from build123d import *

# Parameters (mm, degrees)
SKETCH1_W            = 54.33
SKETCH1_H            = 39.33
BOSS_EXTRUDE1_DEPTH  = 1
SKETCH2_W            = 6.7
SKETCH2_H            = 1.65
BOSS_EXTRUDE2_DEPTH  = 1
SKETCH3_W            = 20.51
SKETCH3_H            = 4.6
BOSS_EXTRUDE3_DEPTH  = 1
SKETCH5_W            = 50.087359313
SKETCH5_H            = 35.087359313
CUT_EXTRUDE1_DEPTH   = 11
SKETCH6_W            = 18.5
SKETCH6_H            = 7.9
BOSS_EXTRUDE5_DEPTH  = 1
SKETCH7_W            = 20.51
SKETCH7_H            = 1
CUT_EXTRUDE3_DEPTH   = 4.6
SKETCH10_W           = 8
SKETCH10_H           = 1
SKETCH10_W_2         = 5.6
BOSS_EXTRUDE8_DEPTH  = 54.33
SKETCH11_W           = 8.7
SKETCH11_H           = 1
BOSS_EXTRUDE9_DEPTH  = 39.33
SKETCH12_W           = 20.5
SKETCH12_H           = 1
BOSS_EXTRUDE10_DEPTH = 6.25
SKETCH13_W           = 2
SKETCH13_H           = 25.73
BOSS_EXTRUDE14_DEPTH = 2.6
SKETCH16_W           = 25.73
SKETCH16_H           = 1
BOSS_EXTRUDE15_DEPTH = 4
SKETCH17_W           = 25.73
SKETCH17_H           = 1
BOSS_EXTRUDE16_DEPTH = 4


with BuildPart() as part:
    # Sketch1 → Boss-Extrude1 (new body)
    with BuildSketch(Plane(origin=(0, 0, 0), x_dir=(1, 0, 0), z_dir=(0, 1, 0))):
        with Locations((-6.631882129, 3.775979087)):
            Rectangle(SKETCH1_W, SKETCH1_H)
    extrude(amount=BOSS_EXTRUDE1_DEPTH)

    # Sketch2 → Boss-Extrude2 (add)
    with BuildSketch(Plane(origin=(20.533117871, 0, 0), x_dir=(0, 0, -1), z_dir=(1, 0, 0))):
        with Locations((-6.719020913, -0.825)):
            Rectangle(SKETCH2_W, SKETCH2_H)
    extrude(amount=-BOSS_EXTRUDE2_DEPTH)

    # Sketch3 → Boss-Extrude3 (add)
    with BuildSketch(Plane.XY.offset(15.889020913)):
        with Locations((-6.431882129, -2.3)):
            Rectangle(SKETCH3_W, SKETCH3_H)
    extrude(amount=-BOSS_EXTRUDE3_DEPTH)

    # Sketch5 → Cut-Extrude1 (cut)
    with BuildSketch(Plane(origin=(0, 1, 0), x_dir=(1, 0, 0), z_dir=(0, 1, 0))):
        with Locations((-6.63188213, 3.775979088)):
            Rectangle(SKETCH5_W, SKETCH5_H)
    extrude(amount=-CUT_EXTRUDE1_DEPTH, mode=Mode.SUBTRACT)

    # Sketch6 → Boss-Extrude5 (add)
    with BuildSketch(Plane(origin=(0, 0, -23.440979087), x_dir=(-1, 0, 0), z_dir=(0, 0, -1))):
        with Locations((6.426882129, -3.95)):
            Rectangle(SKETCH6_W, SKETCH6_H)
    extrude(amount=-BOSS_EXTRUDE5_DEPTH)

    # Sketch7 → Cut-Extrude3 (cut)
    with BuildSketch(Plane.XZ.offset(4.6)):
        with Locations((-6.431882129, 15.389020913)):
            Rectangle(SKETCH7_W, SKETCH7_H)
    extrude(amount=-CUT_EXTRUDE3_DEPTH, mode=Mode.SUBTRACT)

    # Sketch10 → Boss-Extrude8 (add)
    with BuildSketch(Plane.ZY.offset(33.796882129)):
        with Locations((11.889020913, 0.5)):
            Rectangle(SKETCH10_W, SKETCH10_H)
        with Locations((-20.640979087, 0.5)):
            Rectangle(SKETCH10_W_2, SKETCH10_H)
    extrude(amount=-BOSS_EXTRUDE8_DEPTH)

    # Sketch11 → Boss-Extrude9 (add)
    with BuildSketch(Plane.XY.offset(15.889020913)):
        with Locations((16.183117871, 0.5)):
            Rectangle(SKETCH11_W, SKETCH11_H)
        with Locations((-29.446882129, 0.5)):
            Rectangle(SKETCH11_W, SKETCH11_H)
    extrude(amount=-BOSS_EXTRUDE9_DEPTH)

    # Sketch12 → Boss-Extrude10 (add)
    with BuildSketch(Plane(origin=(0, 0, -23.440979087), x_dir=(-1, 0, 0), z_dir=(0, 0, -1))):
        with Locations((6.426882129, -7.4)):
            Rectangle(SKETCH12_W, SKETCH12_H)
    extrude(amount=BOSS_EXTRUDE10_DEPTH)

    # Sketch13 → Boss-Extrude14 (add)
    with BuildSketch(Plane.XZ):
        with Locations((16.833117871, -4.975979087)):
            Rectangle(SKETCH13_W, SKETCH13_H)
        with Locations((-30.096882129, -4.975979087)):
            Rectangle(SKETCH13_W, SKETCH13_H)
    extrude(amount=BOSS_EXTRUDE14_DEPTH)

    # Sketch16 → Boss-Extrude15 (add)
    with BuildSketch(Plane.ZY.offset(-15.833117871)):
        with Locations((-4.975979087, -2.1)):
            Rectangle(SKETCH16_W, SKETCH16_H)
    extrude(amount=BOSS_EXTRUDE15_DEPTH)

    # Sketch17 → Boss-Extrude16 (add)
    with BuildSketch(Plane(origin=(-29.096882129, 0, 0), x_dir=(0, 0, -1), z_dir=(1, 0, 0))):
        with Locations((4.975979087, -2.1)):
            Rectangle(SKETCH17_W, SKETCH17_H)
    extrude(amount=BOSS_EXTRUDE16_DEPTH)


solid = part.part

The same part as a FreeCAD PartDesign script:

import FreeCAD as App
import Part
import Sketcher

doc = App.newDocument("Part")
params = doc.addObject("Spreadsheet::Sheet", "Params")
for row, (alias, value) in enumerate([
    ("sketch1_width", "54.33 mm"),
    ("sketch1_height", "39.33 mm"),
    ("pad1_length", "1 mm"),
    ("sketch2_height", "6.7 mm"),
    ("sketch2_width", "1.65 mm"),
    ("pad2_length", "1 mm"),
    ("sketch3_height", "4.6 mm"),
    ("sketch3_width", "20.51 mm"),
    ("pad3_length", "1 mm"),
    ("pocket1_length", "11 mm"),
    ("sketch5_width", "18.5 mm"),
    ("sketch5_height", "7.9 mm"),
    ("pad4_length", "1 mm"),
    ("sketch6_height", "1 mm"),
    ("sketch6_width", "20.51 mm"),
    ("pocket2_length", "4.6 mm"),
    ("sketch7_width", "1 mm"),
    ("sketch7_height", "8 mm"),
    ("sketch7_height2", "5.6 mm"),
    ("pad5_length", "54.33 mm"),
    ("sketch8_height", "1 mm"),
    ("sketch8_width", "8.7 mm"),
    ("pad6_length", "39.33 mm"),
    ("sketch9_height", "1 mm"),
    ("sketch9_width", "20.5 mm"),
    ("pad7_length", "6.25 mm"),
    ("sketch10_width", "2 mm"),
    ("sketch10_height", "25.73 mm"),
    ("pad8_length", "2.6 mm"),
    ("sketch11_width", "1 mm"),
    ("sketch11_height", "25.73 mm"),
    ("pad9_length", "4 mm"),
    ("sketch12_width", "1 mm"),
    ("sketch12_height", "25.73 mm"),
    ("pad10_length", "4 mm"),
], start=1):
    params.set(f"A{row}", alias)
    params.set(f"B{row}", "=" + value)
    params.setAlias(f"B{row}", alias)

body = doc.addObject("PartDesign::Body", "Body")

# Sketch on XZ plane
sketch1 = doc.addObject("Sketcher::SketchObject", "Sketch")
body.addObject(sketch1)
sketch1.AttachmentSupport = (doc.XZ_Plane, [""])
sketch1.MapMode = "FlatFace"
sketch1.addGeometry(Part.LineSegment(App.Vector(-34, -23, 0), App.Vector(-34, 16, 0)), False)
sketch1.addGeometry(Part.LineSegment(App.Vector(-34, 16, 0), App.Vector(21, 16, 0)), False)
sketch1.addGeometry(Part.LineSegment(App.Vector(21, 16, 0), App.Vector(21, -23, 0)), False)
sketch1.addGeometry(Part.LineSegment(App.Vector(21, -23, 0), App.Vector(-34, -23, 0)), False)
sketch1.addConstraint(Sketcher.Constraint("Coincident", 0, 2, 1, 1))
sketch1.addConstraint(Sketcher.Constraint("Coincident", 1, 2, 2, 1))
sketch1.addConstraint(Sketcher.Constraint("Coincident", 2, 2, 3, 1))
sketch1.addConstraint(Sketcher.Constraint("Coincident", 3, 2, 0, 1))
sketch1.addConstraint(Sketcher.Constraint("Vertical", 0))
sketch1.addConstraint(Sketcher.Constraint("Horizontal", 1))
sketch1.addConstraint(Sketcher.Constraint("Vertical", 2))
sketch1.addConstraint(Sketcher.Constraint("Horizontal", 3))
sketch1.addConstraint(Sketcher.Constraint("DistanceX", 1, 1, 1, 2, 54.33))
sketch1.addConstraint(Sketcher.Constraint("DistanceY", 0, 1, 0, 2, 39.33))
sketch1.addConstraint(Sketcher.Constraint("DistanceY", -1, 1, 0, 2, 15.889021))
sketch1.addConstraint(Sketcher.Constraint("DistanceX", 0, 2, -1, 1, 33.796882))
sketch1.setExpression("Constraints[8]", "Params.sketch1_width")
sketch1.setExpression("Constraints[9]", "Params.sketch1_height")
pad1 = doc.addObject("PartDesign::Pad", "Pad")
body.addObject(pad1)
pad1.Profile = sketch1
pad1.setExpression("Length", "Params.pad1_length")
pad1.Reversed = True

# Sketch on YZ plane
sketch2 = doc.addObject("Sketcher::SketchObject", "Sketch001")
body.addObject(sketch2)
sketch2.AttachmentSupport = (doc.YZ_Plane, [""])
sketch2.MapMode = "FlatFace"
sketch2.AttachmentOffset = App.Placement(App.Vector(0, 0, 20.533118), App.Rotation())
sketch2.addGeometry(Part.LineSegment(App.Vector(0, 10.1, 0), App.Vector(-1.6, 10.1, 0)), False)
sketch2.addGeometry(Part.LineSegment(App.Vector(-1.6, 10.1, 0), App.Vector(-1.6, 3.4, 0)), False)
sketch2.addGeometry(Part.LineSegment(App.Vector(-1.6, 3.4, 0), App.Vector(0, 3.4, 0)), False)
sketch2.addGeometry(Part.LineSegment(App.Vector(0, 3.4, 0), App.Vector(0, 10.1, 0)), False)
sketch2.addConstraint(Sketcher.Constraint("Coincident", 0, 2, 1, 1))
sketch2.addConstraint(Sketcher.Constraint("Coincident", 1, 2, 2, 1))
sketch2.addConstraint(Sketcher.Constraint("Coincident", 2, 2, 3, 1))
sketch2.addConstraint(Sketcher.Constraint("Coincident", 3, 2, 0, 1))
sketch2.addConstraint(Sketcher.Constraint("Horizontal", 0))
sketch2.addConstraint(Sketcher.Constraint("Vertical", 1))
sketch2.addConstraint(Sketcher.Constraint("Horizontal", 2))
sketch2.addConstraint(Sketcher.Constraint("Vertical", 3))
sketch2.addConstraint(Sketcher.Constraint("PointOnObject", 2, 2, -2))
sketch2.addConstraint(Sketcher.Constraint("DistanceY", 1, 2, 1, 1, 6.7))
sketch2.addConstraint(Sketcher.Constraint("DistanceX", 0, 2, 0, 1, 1.65))
sketch2.addConstraint(Sketcher.Constraint("DistanceY", -1, 1, 0, 2, 10.069021))
sketch2.setExpression("Constraints[9]", "Params.sketch2_height")
sketch2.setExpression("Constraints[10]", "Params.sketch2_width")
pad2 = doc.addObject("PartDesign::Pad", "Pad001")
body.addObject(pad2)
pad2.Profile = sketch2
pad2.setExpression("Length", "Params.pad2_length")
pad2.Reversed = True

# Sketch on XY plane
sketch3 = doc.addObject("Sketcher::SketchObject", "Sketch002")
body.addObject(sketch3)
sketch3.AttachmentSupport = (doc.XY_Plane, [""])
sketch3.MapMode = "FlatFace"
sketch3.AttachmentOffset = App.Placement(App.Vector(0, 0, 15.889021), App.Rotation())
sketch3.addGeometry(Part.LineSegment(App.Vector(-16.7, 0, 0), App.Vector(-16.7, -4.6, 0)), False)
sketch3.addGeometry(Part.LineSegment(App.Vector(-16.7, -4.6, 0), App.Vector(3.8, -4.6, 0)), False)
sketch3.addGeometry(Part.LineSegment(App.Vector(3.8, -4.6, 0), App.Vector(3.8, 0, 0)), False)
sketch3.addGeometry(Part.LineSegment(App.Vector(3.8, 0, 0), App.Vector(-16.7, 0, 0)), False)
sketch3.addConstraint(Sketcher.Constraint("Coincident", 0, 2, 1, 1))
sketch3.addConstraint(Sketcher.Constraint("Coincident", 1, 2, 2, 1))
sketch3.addConstraint(Sketcher.Constraint("Coincident", 2, 2, 3, 1))
sketch3.addConstraint(Sketcher.Constraint("Coincident", 3, 2, 0, 1))
sketch3.addConstraint(Sketcher.Constraint("Vertical", 0))
sketch3.addConstraint(Sketcher.Constraint("Horizontal", 1))
sketch3.addConstraint(Sketcher.Constraint("Vertical", 2))
sketch3.addConstraint(Sketcher.Constraint("Horizontal", 3))
sketch3.addConstraint(Sketcher.Constraint("PointOnObject", 2, 2, -1))
sketch3.addConstraint(Sketcher.Constraint("DistanceY", 0, 2, 0, 1, 4.6))
sketch3.addConstraint(Sketcher.Constraint("DistanceX", 1, 1, 1, 2, 20.51))
sketch3.addConstraint(Sketcher.Constraint("DistanceX", 0, 2, -1, 1, 16.686882))
sketch3.setExpression("Constraints[9]", "Params.sketch3_height")
sketch3.setExpression("Constraints[10]", "Params.sketch3_width")
pad3 = doc.addObject("PartDesign::Pad", "Pad002")
body.addObject(pad3)
pad3.Profile = sketch3
pad3.setExpression("Length", "Params.pad3_length")
pad3.Reversed = True

# Sketch on XZ plane
sketch4 = doc.addObject("Sketcher::SketchObject", "Sketch003")
body.addObject(sketch4)
sketch4.AttachmentSupport = (doc.XZ_Plane, [""])
sketch4.MapMode = "FlatFace"
sketch4.AttachmentOffset = App.Placement(App.Vector(0, 0, -1), App.Rotation())
sketch4.addGeometry(Part.LineSegment(App.Vector(-32, -21, 0), App.Vector(-32, 14, 0)), False)
sketch4.addGeometry(Part.LineSegment(App.Vector(-32, 14, 0), App.Vector(18, 14, 0)), False)
sketch4.addGeometry(Part.LineSegment(App.Vector(18, 14, 0), App.Vector(18, -21, 0)), False)
sketch4.addGeometry(Part.LineSegment(App.Vector(18, -21, 0), App.Vector(-32, -21, 0)), False)
sketch4.addConstraint(Sketcher.Constraint("Coincident", 0, 2, 1, 1))
sketch4.addConstraint(Sketcher.Constraint("Coincident", 1, 2, 2, 1))
sketch4.addConstraint(Sketcher.Constraint("Coincident", 2, 2, 3, 1))
sketch4.addConstraint(Sketcher.Constraint("Coincident", 3, 2, 0, 1))
sketch4.addConstraint(Sketcher.Constraint("Vertical", 0))
sketch4.addConstraint(Sketcher.Constraint("Horizontal", 1))
sketch4.addConstraint(Sketcher.Constraint("Vertical", 2))
sketch4.addConstraint(Sketcher.Constraint("Horizontal", 3))
sketch4.addConstraint(Sketcher.Constraint("DistanceX", 1, 1, 1, 2, 50.087359))
sketch4.addConstraint(Sketcher.Constraint("DistanceY", 0, 1, 0, 2, 35.087359))
sketch4.addConstraint(Sketcher.Constraint("DistanceY", -1, 1, 0, 2, 13.767701))
sketch4.addConstraint(Sketcher.Constraint("DistanceX", 0, 2, -1, 1, 31.675562))
pocket1 = doc.addObject("PartDesign::Pocket", "Pocket")
body.addObject(pocket1)
pocket1.Profile = sketch4
pocket1.setExpression("Length", "Params.pocket1_length")
pocket1.Reversed = True

# Sketch on XY plane
sketch5 = doc.addObject("Sketcher::SketchObject", "Sketch004")
body.addObject(sketch5)
sketch5.AttachmentSupport = (doc.XY_Plane, [""])
sketch5.MapMode = "FlatFace"
sketch5.AttachmentOffset = App.Placement(App.Vector(0, 0, -23.440979), App.Rotation())
sketch5.addGeometry(Part.LineSegment(App.Vector(3, 0, 0), App.Vector(3, -8, 0)), False)
sketch5.addGeometry(Part.LineSegment(App.Vector(3, -8, 0), App.Vector(-16, -8, 0)), False)
sketch5.addGeometry(Part.LineSegment(App.Vector(-16, -8, 0), App.Vector(-16, 0, 0)), False)
sketch5.addGeometry(Part.LineSegment(App.Vector(-16, 0, 0), App.Vector(3, 0, 0)), False)
sketch5.addConstraint(Sketcher.Constraint("Coincident", 0, 2, 1, 1))
sketch5.addConstraint(Sketcher.Constraint("Coincident", 1, 2, 2, 1))
sketch5.addConstraint(Sketcher.Constraint("Coincident", 2, 2, 3, 1))
sketch5.addConstraint(Sketcher.Constraint("Coincident", 3, 2, 0, 1))
sketch5.addConstraint(Sketcher.Constraint("Vertical", 0))
sketch5.addConstraint(Sketcher.Constraint("Horizontal", 1))
sketch5.addConstraint(Sketcher.Constraint("Vertical", 2))
sketch5.addConstraint(Sketcher.Constraint("Horizontal", 3))
sketch5.addConstraint(Sketcher.Constraint("PointOnObject", 2, 2, -1))
sketch5.addConstraint(Sketcher.Constraint("DistanceX", 1, 2, 1, 1, 18.5))
sketch5.addConstraint(Sketcher.Constraint("DistanceY", 0, 2, 0, 1, 7.9))
sketch5.addConstraint(Sketcher.Constraint("DistanceX", -1, 1, 0, 2, 2.823118))
sketch5.setExpression("Constraints[9]", "Params.sketch5_width")
sketch5.setExpression("Constraints[10]", "Params.sketch5_height")
pad4 = doc.addObject("PartDesign::Pad", "Pad003")
body.addObject(pad4)
pad4.Profile = sketch5
pad4.setExpression("Length", "Params.pad4_length")

# Sketch on XZ plane
sketch6 = doc.addObject("Sketcher::SketchObject", "Sketch005")
body.addObject(sketch6)
sketch6.AttachmentSupport = (doc.XZ_Plane, [""])
sketch6.MapMode = "FlatFace"
sketch6.AttachmentOffset = App.Placement(App.Vector(0, 0, 4.6), App.Rotation())
sketch6.addGeometry(Part.LineSegment(App.Vector(-16.7, 15.9, 0), App.Vector(-16.7, 14.9, 0)), False)
sketch6.addGeometry(Part.LineSegment(App.Vector(-16.7, 14.9, 0), App.Vector(3.8, 14.9, 0)), False)
sketch6.addGeometry(Part.LineSegment(App.Vector(3.8, 14.9, 0), App.Vector(3.8, 15.9, 0)), False)
sketch6.addGeometry(Part.LineSegment(App.Vector(3.8, 15.9, 0), App.Vector(-16.7, 15.9, 0)), False)
sketch6.addConstraint(Sketcher.Constraint("Coincident", 0, 2, 1, 1))
sketch6.addConstraint(Sketcher.Constraint("Coincident", 1, 2, 2, 1))
sketch6.addConstraint(Sketcher.Constraint("Coincident", 2, 2, 3, 1))
sketch6.addConstraint(Sketcher.Constraint("Coincident", 3, 2, 0, 1))
sketch6.addConstraint(Sketcher.Constraint("Vertical", 0))
sketch6.addConstraint(Sketcher.Constraint("Horizontal", 1))
sketch6.addConstraint(Sketcher.Constraint("Vertical", 2))
sketch6.addConstraint(Sketcher.Constraint("Horizontal", 3))
sketch6.addConstraint(Sketcher.Constraint("DistanceY", 0, 2, 0, 1, 1.0))
sketch6.addConstraint(Sketcher.Constraint("DistanceX", 1, 1, 1, 2, 20.51))
sketch6.addConstraint(Sketcher.Constraint("DistanceY", -1, 1, 0, 2, 14.889021))
sketch6.addConstraint(Sketcher.Constraint("DistanceX", 0, 2, -1, 1, 16.686882))
sketch6.setExpression("Constraints[8]", "Params.sketch6_height")
sketch6.setExpression("Constraints[9]", "Params.sketch6_width")
pocket2 = doc.addObject("PartDesign::Pocket", "Pocket001")
body.addObject(pocket2)
pocket2.Profile = sketch6
pocket2.setExpression("Length", "Params.pocket2_length")

# Sketch on YZ plane
sketch7 = doc.addObject("Sketcher::SketchObject", "Sketch006")
body.addObject(sketch7)
sketch7.AttachmentSupport = (doc.YZ_Plane, [""])
sketch7.MapMode = "FlatFace"
sketch7.AttachmentOffset = App.Placement(App.Vector(0, 0, -33.796882), App.Rotation())
sketch7.addGeometry(Part.LineSegment(App.Vector(1, 7.9, 0), App.Vector(0, 7.9, 0)), False)
sketch7.addGeometry(Part.LineSegment(App.Vector(0, 7.9, 0), App.Vector(0, 15.9, 0)), False)
sketch7.addGeometry(Part.LineSegment(App.Vector(0, 15.9, 0), App.Vector(1, 15.9, 0)), False)
sketch7.addGeometry(Part.LineSegment(App.Vector(1, 15.9, 0), App.Vector(1, 7.9, 0)), False)
sketch7.addGeometry(Part.LineSegment(App.Vector(1, -23.4, 0), App.Vector(0, -23.4, 0)), False)
sketch7.addGeometry(Part.LineSegment(App.Vector(0, -23.4, 0), App.Vector(0, -17.8, 0)), False)
sketch7.addGeometry(Part.LineSegment(App.Vector(0, -17.8, 0), App.Vector(1, -17.8, 0)), False)
sketch7.addGeometry(Part.LineSegment(App.Vector(1, -17.8, 0), App.Vector(1, -23.4, 0)), False)
sketch7.addConstraint(Sketcher.Constraint("Coincident", 0, 2, 1, 1))
sketch7.addConstraint(Sketcher.Constraint("Coincident", 1, 2, 2, 1))
sketch7.addConstraint(Sketcher.Constraint("Coincident", 2, 2, 3, 1))
sketch7.addConstraint(Sketcher.Constraint("Coincident", 3, 2, 0, 1))
sketch7.addConstraint(Sketcher.Constraint("Coincident", 4, 2, 5, 1))
sketch7.addConstraint(Sketcher.Constraint("Coincident", 5, 2, 6, 1))
sketch7.addConstraint(Sketcher.Constraint("Coincident", 6, 2, 7, 1))
sketch7.addConstraint(Sketcher.Constraint("Coincident", 7, 2, 4, 1))
sketch7.addConstraint(Sketcher.Constraint("Horizontal", 0))
sketch7.addConstraint(Sketcher.Constraint("Vertical", 1))
sketch7.addConstraint(Sketcher.Constraint("Horizontal", 2))
sketch7.addConstraint(Sketcher.Constraint("Vertical", 3))
sketch7.addConstraint(Sketcher.Constraint("Horizontal", 4))
sketch7.addConstraint(Sketcher.Constraint("Vertical", 5))
sketch7.addConstraint(Sketcher.Constraint("Horizontal", 6))
sketch7.addConstraint(Sketcher.Constraint("Vertical", 7))
sketch7.addConstraint(Sketcher.Constraint("PointOnObject", 0, 2, -2))
sketch7.addConstraint(Sketcher.Constraint("PointOnObject", 4, 2, -2))
sketch7.addConstraint(Sketcher.Constraint("Vertical", 3, 2, 6, 2))
sketch7.addConstraint(Sketcher.Constraint("DistanceX", 0, 2, 0, 1, 1.0))
sketch7.addConstraint(Sketcher.Constraint("DistanceY", 1, 1, 1, 2, 8.0))
sketch7.addConstraint(Sketcher.Constraint("DistanceY", 5, 1, 5, 2, 5.6))
sketch7.addConstraint(Sketcher.Constraint("DistanceY", 4, 2, 0, 2, 31.33))
sketch7.addConstraint(Sketcher.Constraint("DistanceY", -1, 1, 0, 2, 7.889021))
sketch7.setExpression("Constraints[19]", "Params.sketch7_width")
sketch7.setExpression("Constraints[20]", "Params.sketch7_height")
sketch7.setExpression("Constraints[21]", "Params.sketch7_height2")
pad5 = doc.addObject("PartDesign::Pad", "Pad004")
body.addObject(pad5)
pad5.Profile = sketch7
pad5.setExpression("Length", "Params.pad5_length")

# Sketch on XY plane
sketch8 = doc.addObject("Sketcher::SketchObject", "Sketch007")
body.addObject(sketch8)
sketch8.AttachmentSupport = (doc.XY_Plane, [""])
sketch8.MapMode = "FlatFace"
sketch8.AttachmentOffset = App.Placement(App.Vector(0, 0, 15.889021), App.Rotation())
sketch8.addGeometry(Part.LineSegment(App.Vector(11.8, 1, 0), App.Vector(11.8, 0, 0)), False)
sketch8.addGeometry(Part.LineSegment(App.Vector(11.8, 0, 0), App.Vector(20.5, 0, 0)), False)
sketch8.addGeometry(Part.LineSegment(App.Vector(20.5, 0, 0), App.Vector(20.5, 1, 0)), False)
sketch8.addGeometry(Part.LineSegment(App.Vector(20.5, 1, 0), App.Vector(11.8, 1, 0)), False)
sketch8.addGeometry(Part.LineSegment(App.Vector(-33.8, 1, 0), App.Vector(-33.8, 0, 0)), False)
sketch8.addGeometry(Part.LineSegment(App.Vector(-33.8, 0, 0), App.Vector(-25.1, 0, 0)), False)
sketch8.addGeometry(Part.LineSegment(App.Vector(-25.1, 0, 0), App.Vector(-25.1, 1, 0)), False)
sketch8.addGeometry(Part.LineSegment(App.Vector(-25.1, 1, 0), App.Vector(-33.8, 1, 0)), False)
sketch8.addConstraint(Sketcher.Constraint("Coincident", 0, 2, 1, 1))
sketch8.addConstraint(Sketcher.Constraint("Coincident", 1, 2, 2, 1))
sketch8.addConstraint(Sketcher.Constraint("Coincident", 2, 2, 3, 1))
sketch8.addConstraint(Sketcher.Constraint("Coincident", 3, 2, 0, 1))
sketch8.addConstraint(Sketcher.Constraint("Coincident", 4, 2, 5, 1))
sketch8.addConstraint(Sketcher.Constraint("Coincident", 5, 2, 6, 1))
sketch8.addConstraint(Sketcher.Constraint("Coincident", 6, 2, 7, 1))
sketch8.addConstraint(Sketcher.Constraint("Coincident", 7, 2, 4, 1))
sketch8.addConstraint(Sketcher.Constraint("Vertical", 0))
sketch8.addConstraint(Sketcher.Constraint("Horizontal", 1))
sketch8.addConstraint(Sketcher.Constraint("Vertical", 2))
sketch8.addConstraint(Sketcher.Constraint("Horizontal", 3))
sketch8.addConstraint(Sketcher.Constraint("Vertical", 4))
sketch8.addConstraint(Sketcher.Constraint("Horizontal", 5))
sketch8.addConstraint(Sketcher.Constraint("Vertical", 6))
sketch8.addConstraint(Sketcher.Constraint("Horizontal", 7))
sketch8.addConstraint(Sketcher.Constraint("PointOnObject", 0, 2, -1))
sketch8.addConstraint(Sketcher.Constraint("PointOnObject", 4, 2, -1))
sketch8.addConstraint(Sketcher.Constraint("Horizontal", 3, 2, 6, 2))
sketch8.addConstraint(Sketcher.Constraint("Equal", 3, 5))
sketch8.addConstraint(Sketcher.Constraint("DistanceY", 0, 2, 0, 1, 1.0))
sketch8.addConstraint(Sketcher.Constraint("DistanceX", 1, 1, 1, 2, 8.7))
sketch8.addConstraint(Sketcher.Constraint("DistanceX", 4, 2, 0, 2, 45.63))
sketch8.addConstraint(Sketcher.Constraint("DistanceX", -1, 1, 0, 2, 11.833118))
sketch8.setExpression("Constraints[20]", "Params.sketch8_height")
sketch8.setExpression("Constraints[21]", "Params.sketch8_width")
pad6 = doc.addObject("PartDesign::Pad", "Pad005")
body.addObject(pad6)
pad6.Profile = sketch8
pad6.setExpression("Length", "Params.pad6_length")
pad6.Reversed = True

# Sketch on XY plane
sketch9 = doc.addObject("Sketcher::SketchObject", "Sketch008")
body.addObject(sketch9)
sketch9.AttachmentSupport = (doc.XY_Plane, [""])
sketch9.MapMode = "FlatFace"
sketch9.AttachmentOffset = App.Placement(App.Vector(0, 0, -23.440979), App.Rotation())
sketch9.addGeometry(Part.LineSegment(App.Vector(3.8, -6.9, 0), App.Vector(3.8, -7.9, 0)), False)
sketch9.addGeometry(Part.LineSegment(App.Vector(3.8, -7.9, 0), App.Vector(-16.7, -7.9, 0)), False)
sketch9.addGeometry(Part.LineSegment(App.Vector(-16.7, -7.9, 0), App.Vector(-16.7, -6.9, 0)), False)
sketch9.addGeometry(Part.LineSegment(App.Vector(-16.7, -6.9, 0), App.Vector(3.8, -6.9, 0)), False)
sketch9.addConstraint(Sketcher.Constraint("Coincident", 0, 2, 1, 1))
sketch9.addConstraint(Sketcher.Constraint("Coincident", 1, 2, 2, 1))
sketch9.addConstraint(Sketcher.Constraint("Coincident", 2, 2, 3, 1))
sketch9.addConstraint(Sketcher.Constraint("Coincident", 3, 2, 0, 1))
sketch9.addConstraint(Sketcher.Constraint("Vertical", 0))
sketch9.addConstraint(Sketcher.Constraint("Horizontal", 1))
sketch9.addConstraint(Sketcher.Constraint("Vertical", 2))
sketch9.addConstraint(Sketcher.Constraint("Horizontal", 3))
sketch9.addConstraint(Sketcher.Constraint("DistanceY", 0, 2, 0, 1, 1.0))
sketch9.addConstraint(Sketcher.Constraint("DistanceX", 1, 2, 1, 1, 20.5))
sketch9.addConstraint(Sketcher.Constraint("DistanceY", 0, 2, -1, 1, 7.9))
sketch9.addConstraint(Sketcher.Constraint("DistanceX", -1, 1, 0, 2, 3.823118))
sketch9.setExpression("Constraints[8]", "Params.sketch9_height")
sketch9.setExpression("Constraints[9]", "Params.sketch9_width")
pad7 = doc.addObject("PartDesign::Pad", "Pad006")
body.addObject(pad7)
pad7.Profile = sketch9
pad7.setExpression("Length", "Params.pad7_length")
pad7.Reversed = True

# Sketch on XZ plane
sketch10 = doc.addObject("Sketcher::SketchObject", "Sketch009")
body.addObject(sketch10)
sketch10.AttachmentSupport = (doc.XZ_Plane, [""])
sketch10.MapMode = "FlatFace"
sketch10.addGeometry(Part.LineSegment(App.Vector(15.8, 7.9, 0), App.Vector(15.8, -17.8, 0)), False)
sketch10.addGeometry(Part.LineSegment(App.Vector(15.8, -17.8, 0), App.Vector(17.8, -17.8, 0)), False)
sketch10.addGeometry(Part.LineSegment(App.Vector(17.8, -17.8, 0), App.Vector(17.8, 7.9, 0)), False)
sketch10.addGeometry(Part.LineSegment(App.Vector(17.8, 7.9, 0), App.Vector(15.8, 7.9, 0)), False)
sketch10.addGeometry(Part.LineSegment(App.Vector(-31.1, 7.9, 0), App.Vector(-31.1, -17.8, 0)), False)
sketch10.addGeometry(Part.LineSegment(App.Vector(-31.1, -17.8, 0), App.Vector(-29.1, -17.8, 0)), False)
sketch10.addGeometry(Part.LineSegment(App.Vector(-29.1, -17.8, 0), App.Vector(-29.1, 7.9, 0)), False)
sketch10.addGeometry(Part.LineSegment(App.Vector(-29.1, 7.9, 0), App.Vector(-31.1, 7.9, 0)), False)
sketch10.addConstraint(Sketcher.Constraint("Coincident", 0, 2, 1, 1))
sketch10.addConstraint(Sketcher.Constraint("Coincident", 1, 2, 2, 1))
sketch10.addConstraint(Sketcher.Constraint("Coincident", 2, 2, 3, 1))
sketch10.addConstraint(Sketcher.Constraint("Coincident", 3, 2, 0, 1))
sketch10.addConstraint(Sketcher.Constraint("Coincident", 4, 2, 5, 1))
sketch10.addConstraint(Sketcher.Constraint("Coincident", 5, 2, 6, 1))
sketch10.addConstraint(Sketcher.Constraint("Coincident", 6, 2, 7, 1))
sketch10.addConstraint(Sketcher.Constraint("Coincident", 7, 2, 4, 1))
sketch10.addConstraint(Sketcher.Constraint("Vertical", 0))
sketch10.addConstraint(Sketcher.Constraint("Horizontal", 1))
sketch10.addConstraint(Sketcher.Constraint("Vertical", 2))
sketch10.addConstraint(Sketcher.Constraint("Horizontal", 3))
sketch10.addConstraint(Sketcher.Constraint("Vertical", 4))
sketch10.addConstraint(Sketcher.Constraint("Horizontal", 5))
sketch10.addConstraint(Sketcher.Constraint("Vertical", 6))
sketch10.addConstraint(Sketcher.Constraint("Horizontal", 7))
sketch10.addConstraint(Sketcher.Constraint("Horizontal", 1, 2, 4, 2))
sketch10.addConstraint(Sketcher.Constraint("Horizontal", 3, 2, 6, 2))
sketch10.addConstraint(Sketcher.Constraint("Equal", 3, 5))
sketch10.addConstraint(Sketcher.Constraint("DistanceX", 1, 1, 1, 2, 2.0))
sketch10.addConstraint(Sketcher.Constraint("DistanceY", 0, 2, 0, 1, 25.73))
sketch10.addConstraint(Sketcher.Constraint("DistanceX", 4, 2, 0, 2, 46.93))
sketch10.addConstraint(Sketcher.Constraint("DistanceY", 0, 2, -1, 1, 17.840979))
sketch10.addConstraint(Sketcher.Constraint("DistanceX", -1, 1, 0, 2, 15.833118))
sketch10.setExpression("Constraints[19]", "Params.sketch10_width")
sketch10.setExpression("Constraints[20]", "Params.sketch10_height")
pad8 = doc.addObject("PartDesign::Pad", "Pad007")
body.addObject(pad8)
pad8.Profile = sketch10
pad8.setExpression("Length", "Params.pad8_length")

# Sketch on YZ plane
sketch11 = doc.addObject("Sketcher::SketchObject", "Sketch010")
body.addObject(sketch11)
sketch11.AttachmentSupport = (doc.YZ_Plane, [""])
sketch11.MapMode = "FlatFace"
sketch11.AttachmentOffset = App.Placement(App.Vector(0, 0, 15.833118), App.Rotation())
sketch11.addGeometry(Part.LineSegment(App.Vector(-1.6, -17.8, 0), App.Vector(-2.6, -17.8, 0)), False)
sketch11.addGeometry(Part.LineSegment(App.Vector(-2.6, -17.8, 0), App.Vector(-2.6, 7.9, 0)), False)
sketch11.addGeometry(Part.LineSegment(App.Vector(-2.6, 7.9, 0), App.Vector(-1.6, 7.9, 0)), False)
sketch11.addGeometry(Part.LineSegment(App.Vector(-1.6, 7.9, 0), App.Vector(-1.6, -17.8, 0)), False)
sketch11.addConstraint(Sketcher.Constraint("Coincident", 0, 2, 1, 1))
sketch11.addConstraint(Sketcher.Constraint("Coincident", 1, 2, 2, 1))
sketch11.addConstraint(Sketcher.Constraint("Coincident", 2, 2, 3, 1))
sketch11.addConstraint(Sketcher.Constraint("Coincident", 3, 2, 0, 1))
sketch11.addConstraint(Sketcher.Constraint("Horizontal", 0))
sketch11.addConstraint(Sketcher.Constraint("Vertical", 1))
sketch11.addConstraint(Sketcher.Constraint("Horizontal", 2))
sketch11.addConstraint(Sketcher.Constraint("Vertical", 3))
sketch11.addConstraint(Sketcher.Constraint("DistanceX", 0, 2, 0, 1, 1.0))
sketch11.addConstraint(Sketcher.Constraint("DistanceY", 1, 1, 1, 2, 25.73))
sketch11.addConstraint(Sketcher.Constraint("DistanceX", 0, 2, -1, 1, 2.6))
sketch11.addConstraint(Sketcher.Constraint("DistanceY", 0, 2, -1, 1, 17.840979))
sketch11.setExpression("Constraints[8]", "Params.sketch11_width")
sketch11.setExpression("Constraints[9]", "Params.sketch11_height")
pad9 = doc.addObject("PartDesign::Pad", "Pad008")
body.addObject(pad9)
pad9.Profile = sketch11
pad9.setExpression("Length", "Params.pad9_length")
pad9.Reversed = True

# Sketch on YZ plane
sketch12 = doc.addObject("Sketcher::SketchObject", "Sketch011")
body.addObject(sketch12)
sketch12.AttachmentSupport = (doc.YZ_Plane, [""])
sketch12.MapMode = "FlatFace"
sketch12.AttachmentOffset = App.Placement(App.Vector(0, 0, -29.096882), App.Rotation())
sketch12.addGeometry(Part.LineSegment(App.Vector(-1.6, 7.9, 0), App.Vector(-2.6, 7.9, 0)), False)
sketch12.addGeometry(Part.LineSegment(App.Vector(-2.6, 7.9, 0), App.Vector(-2.6, -17.8, 0)), False)
sketch12.addGeometry(Part.LineSegment(App.Vector(-2.6, -17.8, 0), App.Vector(-1.6, -17.8, 0)), False)
sketch12.addGeometry(Part.LineSegment(App.Vector(-1.6, -17.8, 0), App.Vector(-1.6, 7.9, 0)), False)
sketch12.addConstraint(Sketcher.Constraint("Coincident", 0, 2, 1, 1))
sketch12.addConstraint(Sketcher.Constraint("Coincident", 1, 2, 2, 1))
sketch12.addConstraint(Sketcher.Constraint("Coincident", 2, 2, 3, 1))
sketch12.addConstraint(Sketcher.Constraint("Coincident", 3, 2, 0, 1))
sketch12.addConstraint(Sketcher.Constraint("Horizontal", 0))
sketch12.addConstraint(Sketcher.Constraint("Vertical", 1))
sketch12.addConstraint(Sketcher.Constraint("Horizontal", 2))
sketch12.addConstraint(Sketcher.Constraint("Vertical", 3))
sketch12.addConstraint(Sketcher.Constraint("DistanceX", 0, 2, 0, 1, 1.0))
sketch12.addConstraint(Sketcher.Constraint("DistanceY", 1, 2, 1, 1, 25.73))
sketch12.addConstraint(Sketcher.Constraint("DistanceX", 0, 2, -1, 1, 2.6))
sketch12.addConstraint(Sketcher.Constraint("DistanceY", -1, 1, 0, 2, 7.889021))
sketch12.setExpression("Constraints[8]", "Params.sketch12_width")
sketch12.setExpression("Constraints[9]", "Params.sketch12_height")
pad10 = doc.addObject("PartDesign::Pad", "Pad009")
body.addObject(pad10)
pad10.Profile = sketch12
pad10.setExpression("Length", "Params.pad10_length")

doc.recompute()
